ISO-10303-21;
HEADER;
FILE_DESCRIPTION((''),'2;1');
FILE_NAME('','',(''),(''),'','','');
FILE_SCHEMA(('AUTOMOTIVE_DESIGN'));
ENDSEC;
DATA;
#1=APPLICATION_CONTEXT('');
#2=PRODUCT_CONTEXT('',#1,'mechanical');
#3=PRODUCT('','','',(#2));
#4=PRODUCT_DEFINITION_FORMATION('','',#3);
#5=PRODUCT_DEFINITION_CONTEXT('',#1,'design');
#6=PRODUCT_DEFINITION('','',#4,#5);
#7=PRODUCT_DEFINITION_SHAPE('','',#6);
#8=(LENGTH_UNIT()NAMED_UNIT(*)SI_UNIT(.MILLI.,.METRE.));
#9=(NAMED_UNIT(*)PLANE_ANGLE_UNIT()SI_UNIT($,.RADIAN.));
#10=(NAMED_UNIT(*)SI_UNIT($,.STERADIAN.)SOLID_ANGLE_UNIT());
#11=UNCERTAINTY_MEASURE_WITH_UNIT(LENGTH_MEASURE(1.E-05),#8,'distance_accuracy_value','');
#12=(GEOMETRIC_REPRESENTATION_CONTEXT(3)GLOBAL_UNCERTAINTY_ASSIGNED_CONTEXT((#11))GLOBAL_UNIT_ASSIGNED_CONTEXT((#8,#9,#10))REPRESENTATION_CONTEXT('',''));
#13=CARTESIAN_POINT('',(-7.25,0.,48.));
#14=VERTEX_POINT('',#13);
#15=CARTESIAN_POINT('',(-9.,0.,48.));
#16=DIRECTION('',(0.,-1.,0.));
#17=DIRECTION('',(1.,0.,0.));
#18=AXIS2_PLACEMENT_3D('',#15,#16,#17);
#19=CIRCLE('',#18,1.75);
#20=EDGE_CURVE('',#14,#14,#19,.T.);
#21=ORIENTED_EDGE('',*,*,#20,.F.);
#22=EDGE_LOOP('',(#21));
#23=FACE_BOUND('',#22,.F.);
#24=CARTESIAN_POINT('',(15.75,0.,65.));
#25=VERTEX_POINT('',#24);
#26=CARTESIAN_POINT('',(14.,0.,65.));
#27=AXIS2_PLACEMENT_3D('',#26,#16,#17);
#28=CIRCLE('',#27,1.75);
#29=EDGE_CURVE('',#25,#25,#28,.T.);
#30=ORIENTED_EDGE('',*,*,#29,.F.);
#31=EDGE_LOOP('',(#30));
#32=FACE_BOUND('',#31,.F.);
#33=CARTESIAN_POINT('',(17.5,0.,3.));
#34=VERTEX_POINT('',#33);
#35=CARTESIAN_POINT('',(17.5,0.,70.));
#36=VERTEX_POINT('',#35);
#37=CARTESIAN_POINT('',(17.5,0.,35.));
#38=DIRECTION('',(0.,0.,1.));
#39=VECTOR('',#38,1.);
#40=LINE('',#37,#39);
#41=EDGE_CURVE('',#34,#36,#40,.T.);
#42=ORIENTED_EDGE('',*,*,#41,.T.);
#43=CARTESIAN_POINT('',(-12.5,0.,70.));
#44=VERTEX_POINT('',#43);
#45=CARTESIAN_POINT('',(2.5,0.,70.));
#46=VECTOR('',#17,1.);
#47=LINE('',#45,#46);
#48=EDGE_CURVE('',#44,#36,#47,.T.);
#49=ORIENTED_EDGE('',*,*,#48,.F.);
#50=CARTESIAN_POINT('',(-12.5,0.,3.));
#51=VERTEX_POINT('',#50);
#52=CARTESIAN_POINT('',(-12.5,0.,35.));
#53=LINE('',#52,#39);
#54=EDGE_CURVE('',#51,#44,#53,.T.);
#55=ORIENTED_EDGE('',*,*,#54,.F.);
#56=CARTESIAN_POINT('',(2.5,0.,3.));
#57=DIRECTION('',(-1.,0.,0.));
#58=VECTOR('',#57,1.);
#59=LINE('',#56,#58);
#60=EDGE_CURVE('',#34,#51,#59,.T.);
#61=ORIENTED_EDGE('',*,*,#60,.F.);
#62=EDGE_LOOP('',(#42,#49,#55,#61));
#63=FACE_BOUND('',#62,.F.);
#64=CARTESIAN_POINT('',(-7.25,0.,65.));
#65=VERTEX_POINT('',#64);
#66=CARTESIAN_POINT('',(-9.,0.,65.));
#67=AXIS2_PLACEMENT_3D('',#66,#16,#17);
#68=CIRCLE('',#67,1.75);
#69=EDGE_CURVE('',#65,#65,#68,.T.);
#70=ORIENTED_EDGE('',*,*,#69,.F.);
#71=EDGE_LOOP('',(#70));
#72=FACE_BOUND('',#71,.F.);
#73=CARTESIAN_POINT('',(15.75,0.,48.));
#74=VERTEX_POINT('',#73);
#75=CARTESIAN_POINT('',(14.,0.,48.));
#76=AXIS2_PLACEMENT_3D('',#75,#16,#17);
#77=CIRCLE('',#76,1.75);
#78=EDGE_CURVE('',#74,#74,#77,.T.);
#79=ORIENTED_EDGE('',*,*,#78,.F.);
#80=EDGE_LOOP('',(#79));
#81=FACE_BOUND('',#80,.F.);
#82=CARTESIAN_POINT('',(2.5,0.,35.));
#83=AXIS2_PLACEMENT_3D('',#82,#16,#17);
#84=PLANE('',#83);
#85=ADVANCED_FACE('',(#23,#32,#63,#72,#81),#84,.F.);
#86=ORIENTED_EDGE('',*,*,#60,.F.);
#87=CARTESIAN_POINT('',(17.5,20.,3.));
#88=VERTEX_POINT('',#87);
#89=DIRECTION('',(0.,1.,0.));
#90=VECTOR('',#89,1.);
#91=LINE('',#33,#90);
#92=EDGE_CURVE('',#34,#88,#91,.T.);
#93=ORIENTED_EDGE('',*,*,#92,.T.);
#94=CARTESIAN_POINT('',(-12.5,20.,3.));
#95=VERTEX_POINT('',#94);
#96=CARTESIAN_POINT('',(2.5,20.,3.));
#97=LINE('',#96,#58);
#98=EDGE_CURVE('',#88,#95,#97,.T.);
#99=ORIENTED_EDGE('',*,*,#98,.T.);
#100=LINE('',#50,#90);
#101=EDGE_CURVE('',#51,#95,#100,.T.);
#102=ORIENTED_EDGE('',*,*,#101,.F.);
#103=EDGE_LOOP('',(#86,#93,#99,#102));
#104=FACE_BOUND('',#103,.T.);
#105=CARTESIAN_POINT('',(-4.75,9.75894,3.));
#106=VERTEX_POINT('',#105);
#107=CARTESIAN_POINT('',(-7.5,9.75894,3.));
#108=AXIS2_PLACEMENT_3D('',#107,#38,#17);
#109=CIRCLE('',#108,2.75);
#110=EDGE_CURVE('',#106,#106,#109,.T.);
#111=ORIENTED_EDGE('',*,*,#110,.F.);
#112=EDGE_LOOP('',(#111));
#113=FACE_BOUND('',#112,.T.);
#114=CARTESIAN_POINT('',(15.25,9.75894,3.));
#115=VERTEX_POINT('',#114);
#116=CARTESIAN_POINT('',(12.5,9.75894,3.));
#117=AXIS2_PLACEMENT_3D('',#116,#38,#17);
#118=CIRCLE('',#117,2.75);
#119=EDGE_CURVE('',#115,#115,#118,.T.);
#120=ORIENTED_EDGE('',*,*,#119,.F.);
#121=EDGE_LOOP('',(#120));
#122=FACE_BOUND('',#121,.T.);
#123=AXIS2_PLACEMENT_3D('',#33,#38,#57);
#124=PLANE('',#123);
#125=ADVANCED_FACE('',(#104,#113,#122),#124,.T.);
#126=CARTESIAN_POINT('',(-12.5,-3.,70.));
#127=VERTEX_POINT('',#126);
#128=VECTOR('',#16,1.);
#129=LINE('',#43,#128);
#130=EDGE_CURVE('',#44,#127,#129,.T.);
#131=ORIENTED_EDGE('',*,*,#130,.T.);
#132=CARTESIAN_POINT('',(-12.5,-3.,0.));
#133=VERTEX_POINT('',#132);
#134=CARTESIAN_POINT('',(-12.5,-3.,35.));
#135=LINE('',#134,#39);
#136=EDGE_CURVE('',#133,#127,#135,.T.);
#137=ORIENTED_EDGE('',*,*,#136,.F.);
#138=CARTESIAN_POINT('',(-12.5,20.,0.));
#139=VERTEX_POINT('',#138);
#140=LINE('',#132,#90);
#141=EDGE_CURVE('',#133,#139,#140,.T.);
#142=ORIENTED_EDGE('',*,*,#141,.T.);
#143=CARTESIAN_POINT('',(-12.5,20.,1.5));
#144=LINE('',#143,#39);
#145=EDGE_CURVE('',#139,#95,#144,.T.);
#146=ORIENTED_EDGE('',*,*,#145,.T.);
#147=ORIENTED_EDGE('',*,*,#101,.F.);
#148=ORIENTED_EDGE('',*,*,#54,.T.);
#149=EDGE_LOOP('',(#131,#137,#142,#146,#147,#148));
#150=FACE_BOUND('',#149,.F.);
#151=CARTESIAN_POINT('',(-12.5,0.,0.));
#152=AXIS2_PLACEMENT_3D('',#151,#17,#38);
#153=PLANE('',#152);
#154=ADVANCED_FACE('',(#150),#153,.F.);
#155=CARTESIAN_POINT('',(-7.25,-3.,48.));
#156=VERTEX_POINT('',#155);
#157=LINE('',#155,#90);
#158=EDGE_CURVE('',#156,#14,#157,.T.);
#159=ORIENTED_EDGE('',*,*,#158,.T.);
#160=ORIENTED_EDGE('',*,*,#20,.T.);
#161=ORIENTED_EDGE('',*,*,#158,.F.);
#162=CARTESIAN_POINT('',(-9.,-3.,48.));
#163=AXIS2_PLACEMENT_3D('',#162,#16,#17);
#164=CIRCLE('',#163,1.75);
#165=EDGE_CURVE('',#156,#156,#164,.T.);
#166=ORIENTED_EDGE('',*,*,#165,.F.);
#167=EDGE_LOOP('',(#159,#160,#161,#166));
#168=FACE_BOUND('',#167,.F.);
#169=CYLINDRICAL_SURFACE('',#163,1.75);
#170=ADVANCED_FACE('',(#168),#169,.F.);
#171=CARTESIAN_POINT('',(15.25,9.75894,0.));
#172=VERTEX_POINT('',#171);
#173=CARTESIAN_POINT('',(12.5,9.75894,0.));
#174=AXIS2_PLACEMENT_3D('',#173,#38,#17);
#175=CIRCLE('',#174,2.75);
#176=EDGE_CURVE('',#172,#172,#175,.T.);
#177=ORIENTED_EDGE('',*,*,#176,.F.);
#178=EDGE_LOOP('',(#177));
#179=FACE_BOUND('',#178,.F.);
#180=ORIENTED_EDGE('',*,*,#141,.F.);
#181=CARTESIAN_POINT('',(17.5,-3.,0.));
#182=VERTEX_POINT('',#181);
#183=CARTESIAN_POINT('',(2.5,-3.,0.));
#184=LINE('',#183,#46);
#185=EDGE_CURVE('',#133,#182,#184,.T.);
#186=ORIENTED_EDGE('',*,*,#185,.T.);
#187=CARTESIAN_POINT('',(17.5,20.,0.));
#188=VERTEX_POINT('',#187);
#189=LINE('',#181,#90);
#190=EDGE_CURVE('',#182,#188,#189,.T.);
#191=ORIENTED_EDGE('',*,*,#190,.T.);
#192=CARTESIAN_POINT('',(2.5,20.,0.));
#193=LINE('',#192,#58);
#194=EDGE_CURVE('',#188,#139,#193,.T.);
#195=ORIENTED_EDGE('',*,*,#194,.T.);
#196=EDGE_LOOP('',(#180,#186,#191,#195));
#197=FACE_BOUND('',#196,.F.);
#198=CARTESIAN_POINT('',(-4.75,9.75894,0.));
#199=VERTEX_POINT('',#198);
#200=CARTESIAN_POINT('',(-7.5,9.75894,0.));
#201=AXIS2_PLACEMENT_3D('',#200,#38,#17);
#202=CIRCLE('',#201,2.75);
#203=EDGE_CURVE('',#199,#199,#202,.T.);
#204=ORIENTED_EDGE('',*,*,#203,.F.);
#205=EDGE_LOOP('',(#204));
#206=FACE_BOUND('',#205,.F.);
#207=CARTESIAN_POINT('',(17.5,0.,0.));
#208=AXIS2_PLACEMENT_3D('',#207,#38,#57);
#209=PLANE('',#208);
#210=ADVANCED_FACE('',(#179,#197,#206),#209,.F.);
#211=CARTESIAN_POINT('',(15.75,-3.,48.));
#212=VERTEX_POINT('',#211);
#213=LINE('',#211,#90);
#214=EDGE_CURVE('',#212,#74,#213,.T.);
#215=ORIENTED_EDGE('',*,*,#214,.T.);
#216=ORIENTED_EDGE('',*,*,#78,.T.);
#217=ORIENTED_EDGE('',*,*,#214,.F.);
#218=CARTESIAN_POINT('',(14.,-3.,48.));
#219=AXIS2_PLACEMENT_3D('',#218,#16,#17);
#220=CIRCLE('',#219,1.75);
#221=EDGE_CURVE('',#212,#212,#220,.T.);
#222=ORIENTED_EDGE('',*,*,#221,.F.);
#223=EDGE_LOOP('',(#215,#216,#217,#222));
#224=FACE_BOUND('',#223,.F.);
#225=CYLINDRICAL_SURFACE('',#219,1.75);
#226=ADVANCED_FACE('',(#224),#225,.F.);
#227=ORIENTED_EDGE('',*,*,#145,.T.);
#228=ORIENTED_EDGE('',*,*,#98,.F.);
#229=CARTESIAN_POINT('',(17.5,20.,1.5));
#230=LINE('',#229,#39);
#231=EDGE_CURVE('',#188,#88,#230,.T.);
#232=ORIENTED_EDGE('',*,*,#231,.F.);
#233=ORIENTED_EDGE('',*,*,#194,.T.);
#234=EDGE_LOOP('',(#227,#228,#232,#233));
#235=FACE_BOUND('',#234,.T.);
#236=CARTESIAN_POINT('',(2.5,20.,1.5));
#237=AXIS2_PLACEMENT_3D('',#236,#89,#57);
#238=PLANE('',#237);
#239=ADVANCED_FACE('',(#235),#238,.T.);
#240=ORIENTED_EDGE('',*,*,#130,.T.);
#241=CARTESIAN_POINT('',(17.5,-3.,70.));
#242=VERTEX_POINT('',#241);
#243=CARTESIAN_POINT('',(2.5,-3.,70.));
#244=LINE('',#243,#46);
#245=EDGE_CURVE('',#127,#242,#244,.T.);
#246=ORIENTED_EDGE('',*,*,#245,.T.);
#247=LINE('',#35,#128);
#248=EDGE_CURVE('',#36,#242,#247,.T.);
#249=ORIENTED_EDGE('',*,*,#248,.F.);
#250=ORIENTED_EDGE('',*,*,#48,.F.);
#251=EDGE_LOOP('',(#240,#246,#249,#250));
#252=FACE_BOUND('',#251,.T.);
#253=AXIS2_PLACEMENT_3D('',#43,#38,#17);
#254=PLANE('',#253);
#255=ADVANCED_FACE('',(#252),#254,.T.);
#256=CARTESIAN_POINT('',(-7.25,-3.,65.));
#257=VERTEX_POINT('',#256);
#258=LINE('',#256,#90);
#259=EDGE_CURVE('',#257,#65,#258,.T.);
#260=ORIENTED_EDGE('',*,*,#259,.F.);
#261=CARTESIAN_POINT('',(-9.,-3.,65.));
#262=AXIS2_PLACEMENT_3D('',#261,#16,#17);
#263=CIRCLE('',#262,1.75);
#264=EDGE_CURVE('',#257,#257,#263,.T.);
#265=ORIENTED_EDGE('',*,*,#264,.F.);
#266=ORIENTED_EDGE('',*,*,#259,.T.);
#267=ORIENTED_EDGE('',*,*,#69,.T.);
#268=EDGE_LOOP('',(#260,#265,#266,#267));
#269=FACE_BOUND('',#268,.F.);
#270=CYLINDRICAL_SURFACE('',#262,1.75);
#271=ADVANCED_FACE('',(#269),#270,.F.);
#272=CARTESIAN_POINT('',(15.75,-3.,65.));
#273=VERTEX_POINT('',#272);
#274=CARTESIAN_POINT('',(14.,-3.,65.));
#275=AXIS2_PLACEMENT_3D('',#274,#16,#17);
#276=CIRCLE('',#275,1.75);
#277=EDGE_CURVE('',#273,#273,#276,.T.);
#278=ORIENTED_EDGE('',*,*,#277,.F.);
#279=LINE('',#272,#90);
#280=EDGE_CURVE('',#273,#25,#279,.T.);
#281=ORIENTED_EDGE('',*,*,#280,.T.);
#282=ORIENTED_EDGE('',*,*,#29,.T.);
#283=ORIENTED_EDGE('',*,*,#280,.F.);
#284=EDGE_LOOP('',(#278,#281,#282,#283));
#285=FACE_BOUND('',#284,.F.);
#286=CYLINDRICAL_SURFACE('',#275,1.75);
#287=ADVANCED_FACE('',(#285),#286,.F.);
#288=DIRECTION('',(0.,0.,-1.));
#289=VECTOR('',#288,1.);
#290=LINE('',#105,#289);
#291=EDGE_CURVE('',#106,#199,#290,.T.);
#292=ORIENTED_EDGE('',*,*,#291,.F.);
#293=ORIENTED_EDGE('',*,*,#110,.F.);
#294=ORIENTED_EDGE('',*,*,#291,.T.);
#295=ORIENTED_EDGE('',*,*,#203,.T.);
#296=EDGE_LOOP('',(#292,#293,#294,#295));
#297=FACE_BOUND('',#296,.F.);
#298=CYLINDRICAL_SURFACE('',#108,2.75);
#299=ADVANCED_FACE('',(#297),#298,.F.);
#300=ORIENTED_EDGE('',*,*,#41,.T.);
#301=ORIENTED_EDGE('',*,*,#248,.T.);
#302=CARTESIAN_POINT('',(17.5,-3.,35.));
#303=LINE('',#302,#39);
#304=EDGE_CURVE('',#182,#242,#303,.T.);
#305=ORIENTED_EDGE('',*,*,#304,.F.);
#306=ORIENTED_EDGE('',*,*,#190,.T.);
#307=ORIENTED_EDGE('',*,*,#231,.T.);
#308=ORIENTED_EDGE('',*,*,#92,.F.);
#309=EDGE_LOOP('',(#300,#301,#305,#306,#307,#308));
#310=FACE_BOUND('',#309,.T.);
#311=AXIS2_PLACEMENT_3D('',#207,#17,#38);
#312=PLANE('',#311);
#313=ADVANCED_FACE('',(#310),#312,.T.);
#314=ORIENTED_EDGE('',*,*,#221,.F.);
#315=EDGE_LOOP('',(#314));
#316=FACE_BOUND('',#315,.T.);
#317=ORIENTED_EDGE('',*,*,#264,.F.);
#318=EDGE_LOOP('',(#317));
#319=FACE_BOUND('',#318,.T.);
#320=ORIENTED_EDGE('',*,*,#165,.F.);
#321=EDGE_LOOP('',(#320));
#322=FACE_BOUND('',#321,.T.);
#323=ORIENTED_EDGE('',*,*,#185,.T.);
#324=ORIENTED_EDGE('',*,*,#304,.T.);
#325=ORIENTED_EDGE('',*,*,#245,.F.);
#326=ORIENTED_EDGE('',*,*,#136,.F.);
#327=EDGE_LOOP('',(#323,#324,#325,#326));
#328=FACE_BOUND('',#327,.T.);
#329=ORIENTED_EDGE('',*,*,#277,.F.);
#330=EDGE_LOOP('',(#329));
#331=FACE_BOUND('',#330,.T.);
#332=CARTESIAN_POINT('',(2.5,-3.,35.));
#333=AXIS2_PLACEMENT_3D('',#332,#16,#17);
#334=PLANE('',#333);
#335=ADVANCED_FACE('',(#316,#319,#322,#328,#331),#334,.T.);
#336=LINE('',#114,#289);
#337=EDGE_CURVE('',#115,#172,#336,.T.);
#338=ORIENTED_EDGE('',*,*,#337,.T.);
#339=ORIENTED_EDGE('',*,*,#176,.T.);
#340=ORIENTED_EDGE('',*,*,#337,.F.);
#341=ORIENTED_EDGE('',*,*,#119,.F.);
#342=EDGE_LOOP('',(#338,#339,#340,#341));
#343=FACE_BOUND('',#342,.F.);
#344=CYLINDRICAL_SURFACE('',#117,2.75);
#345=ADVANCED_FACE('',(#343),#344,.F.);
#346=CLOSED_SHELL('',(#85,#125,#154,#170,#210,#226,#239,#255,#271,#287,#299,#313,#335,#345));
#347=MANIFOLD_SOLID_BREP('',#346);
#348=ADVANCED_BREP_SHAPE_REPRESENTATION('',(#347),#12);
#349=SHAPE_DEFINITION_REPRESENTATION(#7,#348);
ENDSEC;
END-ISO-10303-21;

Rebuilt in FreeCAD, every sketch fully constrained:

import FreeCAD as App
import Part
import Sketcher

V = App.Vector


def add_polygon(sketch, points):
    """Adds a closed chain of lines whose ends are joined by coincident constraints."""
    first, n = sketch.GeometryCount, len(points)
    for a, b in zip(points, points[1:] + points[:1]):
        sketch.addGeometry(Part.LineSegment(App.Vector(*a, 0), App.Vector(*b, 0)), False)
    for i in range(n):
        sketch.addConstraint(Sketcher.Constraint("Coincident", first + i, 2, first + (i + 1) % n, 1))

doc = App.newDocument("Part")
params = doc.addObject("Spreadsheet::Sheet", "Params")
for row, (alias, value) in enumerate([
    ("sketch1_width", "30 mm"),
    ("sketch1_height", "70 mm"),
    ("pad1_length", "3 mm"),
    ("sketch2_width", "30 mm"),
    ("sketch2_height", "3 mm"),
    ("pad2_length", "20 mm"),
    ("sketch3_diameter", "5.5 mm"),
    ("sketch4_diameter", "3.5 mm"),
], start=1):
    params.set(f"A{row}", alias)
    params.set(f"B{row}", "=" + value)
    params.setAlias(f"B{row}", alias)

body = doc.addObject("PartDesign::Body", "Body")

# Sketch on XZ plane
sketch1 = doc.addObject("Sketcher::SketchObject", "Sketch")
body.addObject(sketch1)
sketch1.AttachmentSupport = (doc.XZ_Plane, [""])
sketch1.MapMode = "FlatFace"
add_polygon(sketch1, [(-12, 70), (-12, 0), (18, 0), (18, 70)])  # lines 0-3
sketch1.addConstraint(Sketcher.Constraint("Vertical", 0))
sketch1.addConstraint(Sketcher.Constraint("Horizontal", 1))
sketch1.addConstraint(Sketcher.Constraint("Vertical", 2))
sketch1.addConstraint(Sketcher.Constraint("Horizontal", 3))
sketch1.addConstraint(Sketcher.Constraint("PointOnObject", 0, 2, -1))
sketch1.addConstraint(Sketcher.Constraint("DistanceX", 1, 1, 1, 2, 30.0))
sketch1.addConstraint(Sketcher.Constraint("DistanceY", 0, 2, 0, 1, 70.0))
sketch1.addConstraint(Sketcher.Constraint("DistanceX", 0, 2, -1, 1, 12.5))
sketch1.setExpression("Constraints[9]", "Params.sketch1_width")
sketch1.setExpression("Constraints[10]", "Params.sketch1_height")
pad1 = doc.addObject("PartDesign::Pad", "Pad")
body.addObject(pad1)
pad1.Profile = sketch1
pad1.setExpression("Length", "Params.pad1_length")

# Sketch on XZ plane
sketch2 = doc.addObject("Sketcher::SketchObject", "Sketch001")
body.addObject(sketch2)
sketch2.AttachmentSupport = (doc.XZ_Plane, [""])
sketch2.MapMode = "FlatFace"
add_polygon(sketch2, [(17.5, 3), (17.5, 0), (-12.5, 0), (-12.5, 3)])  # lines 0-3
sketch2.addConstraint(Sketcher.Constraint("Vertical", 0))
sketch2.addConstraint(Sketcher.Constraint("Horizontal", 1))
sketch2.addConstraint(Sketcher.Constraint("Vertical", 2))
sketch2.addConstraint(Sketcher.Constraint("Horizontal", 3))
sketch2.addConstraint(Sketcher.Constraint("PointOnObject", 0, 2, -1))
sketch2.addConstraint(Sketcher.Constraint("DistanceX", 1, 2, 1, 1, 30.0))
sketch2.addConstraint(Sketcher.Constraint("DistanceY", 0, 2, 0, 1, 3.0))
sketch2.addConstraint(Sketcher.Constraint("DistanceX", -1, 1, 0, 2, 17.5))
sketch2.setExpression("Constraints[9]", "Params.sketch2_width")
sketch2.setExpression("Constraints[10]", "Params.sketch2_height")
pad2 = doc.addObject("PartDesign::Pad", "Pad001")
body.addObject(pad2)
pad2.Profile = sketch2
pad2.setExpression("Length", "Params.pad2_length")
pad2.Reversed = True

# Sketch on XY plane
sketch3 = doc.addObject("Sketcher::SketchObject", "Sketch002")
body.addObject(sketch3)
sketch3.AttachmentSupport = (doc.XY_Plane, [""])
sketch3.MapMode = "FlatFace"
sketch3.AttachmentOffset = App.Placement(V(0, 0, 3), App.Rotation())
sketch3.addGeometry(Part.Circle(V(12.5, 9.8, 0), V(0, 0, 1), 2.8), False)
sketch3.addGeometry(Part.Circle(V(-7.5, 9.8, 0), V(0, 0, 1), 2.8), False)
sketch3.addConstraint(Sketcher.Constraint("Equal", 0, 1))
sketch3.addConstraint(Sketcher.Constraint("Horizontal", 0, 3, 1, 3))
sketch3.addConstraint(Sketcher.Constraint("Diameter", 0, 5.5))
sketch3.addConstraint(Sketcher.Constraint("DistanceX", 1, 3, 0, 3, 20.0))
sketch3.addConstraint(Sketcher.Constraint("DistanceX", -1, 1, 0, 3, 12.5))
sketch3.addConstraint(Sketcher.Constraint("DistanceY", -1, 1, 0, 3, 9.75894))
sketch3.setExpression("Constraints[2]", "Params.sketch3_diameter")
pocket1 = doc.addObject("PartDesign::Pocket", "Pocket")
body.addObject(pocket1)
pocket1.Profile = sketch3
pocket1.Type = "ThroughAll"

# Sketch on XZ plane
sketch4 = doc.addObject("Sketcher::SketchObject", "Sketch003")
body.addObject(sketch4)
sketch4.AttachmentSupport = (doc.XZ_Plane, [""])
sketch4.MapMode = "FlatFace"
sketch4.AttachmentOffset = App.Placement(V(0, 0, 3), App.Rotation())
sketch4.addGeometry(Part.Circle(V(-9, 65, 0), V(0, 0, 1), 1.8), False)
sketch4.addGeometry(Part.Circle(V(-9, 48, 0), V(0, 0, 1), 1.8), False)
sketch4.addGeometry(Part.Circle(V(14, 65, 0), V(0, 0, 1), 1.8), False)
sketch4.addGeometry(Part.Circle(V(14, 48, 0), V(0, 0, 1), 1.8), False)
sketch4.addConstraint(Sketcher.Constraint("Equal", 0, 1))
sketch4.addConstraint(Sketcher.Constraint("Equal", 1, 2))
sketch4.addConstraint(Sketcher.Constraint("Equal", 2, 3))
sketch4.addConstraint(Sketcher.Constraint("Horizontal", 0, 3, 2, 3))
sketch4.addConstraint(Sketcher.Constraint("Horizontal", 1, 3, 3, 3))
sketch4.addConstraint(Sketcher.Constraint("Vertical", 0, 3, 1, 3))
sketch4.addConstraint(Sketcher.Constraint("Vertical", 2, 3, 3, 3))
sketch4.addConstraint(Sketcher.Constraint("Diameter", 0, 3.5))
sketch4.addConstraint(Sketcher.Constraint("DistanceX", 0, 3, -1, 1, 9.0))
sketch4.addConstraint(Sketcher.Constraint("DistanceY", -1, 1, 0, 3, 65.0))
sketch4.addConstraint(Sketcher.Constraint("DistanceY", -1, 1, 1, 3, 48.0))
sketch4.addConstraint(Sketcher.Constraint("DistanceX", -1, 1, 2, 3, 14.0))
sketch4.setExpression("Constraints[7]", "Params.sketch4_diameter")
pocket2 = doc.addObject("PartDesign::Pocket", "Pocket001")
body.addObject(pocket2)
pocket2.Profile = sketch4
pocket2.Type = "ThroughAll"

doc.recompute()
